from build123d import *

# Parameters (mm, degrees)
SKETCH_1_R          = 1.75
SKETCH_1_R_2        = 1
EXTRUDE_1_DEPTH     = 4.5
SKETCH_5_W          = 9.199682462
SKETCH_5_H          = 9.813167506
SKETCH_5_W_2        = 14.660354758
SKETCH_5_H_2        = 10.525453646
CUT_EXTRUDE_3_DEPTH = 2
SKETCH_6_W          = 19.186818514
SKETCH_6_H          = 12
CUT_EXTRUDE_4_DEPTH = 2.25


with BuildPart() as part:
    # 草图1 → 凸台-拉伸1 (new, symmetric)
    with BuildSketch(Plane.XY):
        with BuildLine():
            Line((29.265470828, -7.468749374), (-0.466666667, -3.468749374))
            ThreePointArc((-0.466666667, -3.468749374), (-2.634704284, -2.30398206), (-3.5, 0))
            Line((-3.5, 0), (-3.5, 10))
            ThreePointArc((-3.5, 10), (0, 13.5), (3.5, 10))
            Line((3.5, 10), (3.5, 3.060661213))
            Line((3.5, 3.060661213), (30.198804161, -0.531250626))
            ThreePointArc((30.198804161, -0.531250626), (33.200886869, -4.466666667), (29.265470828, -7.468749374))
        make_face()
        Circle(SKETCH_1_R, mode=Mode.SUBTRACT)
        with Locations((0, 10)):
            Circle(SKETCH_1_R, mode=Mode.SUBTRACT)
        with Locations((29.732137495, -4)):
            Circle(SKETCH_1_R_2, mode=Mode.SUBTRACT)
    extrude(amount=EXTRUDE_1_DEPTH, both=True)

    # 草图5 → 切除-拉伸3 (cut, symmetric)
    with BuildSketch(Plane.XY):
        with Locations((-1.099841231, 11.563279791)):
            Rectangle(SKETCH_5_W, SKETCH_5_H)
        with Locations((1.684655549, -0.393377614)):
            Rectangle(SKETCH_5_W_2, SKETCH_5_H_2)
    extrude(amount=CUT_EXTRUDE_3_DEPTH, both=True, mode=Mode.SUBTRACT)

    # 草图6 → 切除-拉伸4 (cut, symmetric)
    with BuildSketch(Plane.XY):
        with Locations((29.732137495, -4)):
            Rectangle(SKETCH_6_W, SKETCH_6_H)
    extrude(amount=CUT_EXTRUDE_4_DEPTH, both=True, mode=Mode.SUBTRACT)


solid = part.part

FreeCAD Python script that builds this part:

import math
import FreeCAD as App
import Part
import Sketcher

V = App.Vector


def add_polygon(sketch, points):
    """Adds a closed chain of lines whose ends are joined by coincident constraints."""
    first, n = sketch.GeometryCount, len(points)
    for a, b in zip(points, points[1:] + points[:1]):
        sketch.addGeometry(Part.LineSegment(App.Vector(*a, 0), App.Vector(*b, 0)), False)
    for i in range(n):
        sketch.addConstraint(Sketcher.Constraint("Coincident", first + i, 2, first + (i + 1) % n, 1))

doc = App.newDocument("Part")
body = doc.addObject("PartDesign::Body", "Body")

# Sketch on XY plane
sketch1 = body.newObject("Sketcher::SketchObject", "Sketch")
sketch1.AttachmentSupport = (doc.getObject("XY_Plane"), [""])
sketch1.MapMode = "FlatFace"
sketch1.addGeometry(Part.LineSegment(V(-0.466667, -3.468749, 0), V(29.265471, -7.468749, 0)), False)
sketch1.addGeometry(Part.ArcOfCircle(Part.Circle(V(29.732137, -4, 0), V(0, 0, 1), 3.5), math.radians(-97.662256), math.radians(82.337744)), False)
sketch1.addGeometry(Part.LineSegment(V(30.198804, -0.531251, 0), V(3.5, 3.060661, 0)), False)
sketch1.addGeometry(Part.LineSegment(V(3.5, 3.060661, 0), V(3.5, 10, 0)), False)
sketch1.addGeometry(Part.ArcOfCircle(Part.Circle(V(0, 10, 0), V(0, 0, 1), 3.5), math.radians(0), math.radians(180)), False)
sketch1.addGeometry(Part.LineSegment(V(-3.5, 10, 0), V(-3.5, 0, 0)), False)
sketch1.addGeometry(Part.ArcOfCircle(Part.Circle(V(0, 0, 0), V(0, 0, 1), 3.5), math.radians(-180), math.radians(-97.662256)), False)
sketch1.addGeometry(Part.Circle(V(29.732137, -4, 0), V(0, 0, 1), 1), False)
sketch1.addGeometry(Part.Circle(V(0, 0, 0), V(0, 0, 1), 1.75), False)
sketch1.addGeometry(Part.Circle(V(0, 10, 0), V(0, 0, 1), 1.75), False)
sketch1.addConstraint(Sketcher.Constraint("Tangent", 0, 2, 1, 1))
sketch1.addConstraint(Sketcher.Constraint("Tangent", 1, 2, 2, 1))
sketch1.addConstraint(Sketcher.Constraint("Coincident", 2, 2, 3, 1))
sketch1.addConstraint(Sketcher.Constraint("Tangent", 3, 2, 4, 1))
sketch1.addConstraint(Sketcher.Constraint("Tangent", 4, 2, 5, 1))
sketch1.addConstraint(Sketcher.Constraint("Tangent", 5, 2, 6, 1))
sketch1.addConstraint(Sketcher.Constraint("Tangent", 6, 2, 0, 1))
sketch1.addConstraint(Sketcher.Constraint("Vertical", 3))
sketch1.addConstraint(Sketcher.Constraint("Vertical", 5))
sketch1.addConstraint(Sketcher.Constraint("Coincident", 6, 3, -1, 1))
sketch1.addConstraint(Sketcher.Constraint("Coincident", 8, 3, -1, 1))
sketch1.addConstraint(Sketcher.Constraint("Coincident", 7, 3, 1, 3))
sketch1.addConstraint(Sketcher.Constraint("Coincident", 9, 3, 4, 3))
sketch1.addConstraint(Sketcher.Constraint("Equal", 1, 4))
sketch1.addConstraint(Sketcher.Constraint("Equal", 4, 6))
sketch1.addConstraint(Sketcher.Constraint("Equal", 8, 9))
sketch1.addConstraint(Sketcher.Constraint("Parallel", 0, 2))
sketch1.addConstraint(Sketcher.Constraint("Diameter", 7, 2.0))
sketch1.addConstraint(Sketcher.Constraint("Diameter", 8, 3.5))
sketch1.addConstraint(Sketcher.Constraint("Radius", 1, 3.5))
sketch1.addConstraint(Sketcher.Constraint("DistanceY", 5, 2, 5, 1, 10.0))
sketch1.addConstraint(Sketcher.Constraint("Distance", 0, 30.0))
sketch1.addConstraint(Sketcher.Constraint("DistanceY", 1, 3, -1, 1, 4.0))
pad1 = body.newObject("PartDesign::Pad", "Pad")
pad1.Profile = sketch1
pad1.Length = 9
pad1.Midplane = True

# Sketch on XY plane
sketch2 = body.newObject("Sketcher::SketchObject", "Sketch001")
sketch2.AttachmentSupport = (doc.getObject("XY_Plane"), [""])
sketch2.MapMode = "FlatFace"
add_polygon(sketch2, [(-5.699682, 16.469864), (-5.699682, 6.656696), (3.5, 6.656696), (3.5, 16.469864)])  # lines 0-3
add_polygon(sketch2, [(-5.645522, 4.869349), (-5.645522, -5.656104), (9.014833, -5.656104), (9.014833, 4.869349)])  # lines 4-7
sketch2.addConstraint(Sketcher.Constraint("Vertical", 0))
sketch2.addConstraint(Sketcher.Constraint("Horizontal", 1))
sketch2.addConstraint(Sketcher.Constraint("Vertical", 2))
sketch2.addConstraint(Sketcher.Constraint("Horizontal", 3))
sketch2.addConstraint(Sketcher.Constraint("Vertical", 4))
sketch2.addConstraint(Sketcher.Constraint("Horizontal", 5))
sketch2.addConstraint(Sketcher.Constraint("Vertical", 6))
sketch2.addConstraint(Sketcher.Constraint("Horizontal", 7))
sketch2.addConstraint(Sketcher.Constraint("DistanceX", -1, 1, 1, 2, 3.5))
sketch2.addConstraint(Sketcher.Constraint("DistanceY", 4, 2, 0, 2, 12.3128))
sketch2.addConstraint(Sketcher.Constraint("DistanceX", 1, 1, 1, 2, 9.199682))
sketch2.addConstraint(Sketcher.Constraint("DistanceX", 5, 1, 5, 2, 14.660355))
sketch2.addConstraint(Sketcher.Constraint("DistanceY", 0, 2, 0, 1, 9.813168))
sketch2.addConstraint(Sketcher.Constraint("DistanceY", 4, 2, 4, 1, 10.525454))
sketch2.addConstraint(Sketcher.Constraint("DistanceX", 4, 2, -1, 1, 5.645522))
sketch2.addConstraint(Sketcher.Constraint("DistanceY", -1, 1, 6, 2, 4.869349))
pocket1 = body.newObject("PartDesign::Pocket", "Pocket")
pocket1.Profile = sketch2
pocket1.Length = 4
pocket1.Midplane = True

# Sketch on XY plane
sketch3 = body.newObject("Sketcher::SketchObject", "Sketch002")
sketch3.AttachmentSupport = (doc.getObject("XY_Plane"), [""])
sketch3.MapMode = "FlatFace"
add_polygon(sketch3, [(20.138728, 2), (20.138728, -10), (39.325547, -10), (39.325547, 2)])  # lines 0-3
sketch3.addConstraint(Sketcher.Constraint("Vertical", 0))
sketch3.addConstraint(Sketcher.Constraint("Horizontal", 1))
sketch3.addConstraint(Sketcher.Constraint("Vertical", 2))
sketch3.addConstraint(Sketcher.Constraint("Horizontal", 3))
sketch3.addConstraint(Sketcher.Constraint("DistanceY", 0, 2, 0, 1, 12.0))
sketch3.addConstraint(Sketcher.Constraint("DistanceY", 0, 2, -1, 1, 10.0))
sketch3.addConstraint(Sketcher.Constraint("DistanceX", 1, 1, 1, 2, 19.186819))
sketch3.addConstraint(Sketcher.Constraint("DistanceX", -1, 1, 0, 2, 20.138728))
pocket2 = body.newObject("PartDesign::Pocket", "Pocket001")
pocket2.Profile = sketch3
pocket2.Length = 4.5
pocket2.Midplane = True

doc.recompute()
